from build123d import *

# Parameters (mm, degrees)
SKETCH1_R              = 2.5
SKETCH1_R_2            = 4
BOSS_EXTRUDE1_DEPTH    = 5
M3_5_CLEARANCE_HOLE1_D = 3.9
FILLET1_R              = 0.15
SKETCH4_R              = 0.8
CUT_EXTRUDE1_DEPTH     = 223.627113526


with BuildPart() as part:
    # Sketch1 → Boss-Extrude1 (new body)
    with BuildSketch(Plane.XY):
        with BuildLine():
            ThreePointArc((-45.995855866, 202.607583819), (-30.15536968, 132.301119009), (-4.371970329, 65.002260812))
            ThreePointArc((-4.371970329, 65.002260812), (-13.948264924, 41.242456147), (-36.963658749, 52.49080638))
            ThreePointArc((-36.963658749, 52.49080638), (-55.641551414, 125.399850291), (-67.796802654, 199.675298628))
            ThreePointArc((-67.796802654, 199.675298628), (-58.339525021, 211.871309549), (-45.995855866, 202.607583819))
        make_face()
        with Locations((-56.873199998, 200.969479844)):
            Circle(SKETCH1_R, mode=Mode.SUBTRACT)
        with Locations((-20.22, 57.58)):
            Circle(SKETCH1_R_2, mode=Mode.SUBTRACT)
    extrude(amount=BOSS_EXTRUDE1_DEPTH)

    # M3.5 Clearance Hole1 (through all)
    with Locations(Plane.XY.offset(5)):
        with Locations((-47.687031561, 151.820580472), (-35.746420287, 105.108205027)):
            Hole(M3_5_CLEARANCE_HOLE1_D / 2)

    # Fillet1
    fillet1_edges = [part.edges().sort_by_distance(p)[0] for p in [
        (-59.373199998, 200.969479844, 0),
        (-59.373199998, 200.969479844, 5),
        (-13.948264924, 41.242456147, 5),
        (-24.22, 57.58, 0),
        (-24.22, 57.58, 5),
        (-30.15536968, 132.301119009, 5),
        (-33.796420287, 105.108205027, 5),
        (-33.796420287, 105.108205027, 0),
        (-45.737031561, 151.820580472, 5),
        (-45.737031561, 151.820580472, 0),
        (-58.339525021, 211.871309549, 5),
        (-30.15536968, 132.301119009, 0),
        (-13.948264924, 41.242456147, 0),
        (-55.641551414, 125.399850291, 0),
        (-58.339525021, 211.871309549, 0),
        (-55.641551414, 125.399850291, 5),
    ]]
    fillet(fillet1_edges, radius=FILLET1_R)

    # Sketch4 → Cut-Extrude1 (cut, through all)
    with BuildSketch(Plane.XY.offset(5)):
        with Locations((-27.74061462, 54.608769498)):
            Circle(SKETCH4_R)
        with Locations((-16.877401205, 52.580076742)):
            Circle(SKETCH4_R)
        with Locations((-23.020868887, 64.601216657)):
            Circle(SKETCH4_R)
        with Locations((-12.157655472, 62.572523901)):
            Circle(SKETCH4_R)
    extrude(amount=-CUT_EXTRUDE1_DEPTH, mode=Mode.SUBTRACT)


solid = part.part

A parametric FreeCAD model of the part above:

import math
import FreeCAD as App
import Part
import Sketcher

V = App.Vector


def edges_at(feature, points):
    """Names of the edges that pass closest to the given points."""
    edges = feature.Shape.Edges
    near = lambda p: min(range(len(edges)), key=lambda i: edges[i].distToShape(Part.Vertex(*p))[0])
    return sorted({f"Edge{near(p) + 1}" for p in points})

doc = App.newDocument("Part")
body = doc.addObject("PartDesign::Body", "Body")

# Sketch on XY plane
sketch1 = body.newObject("Sketcher::SketchObject", "Sketch")
sketch1.AttachmentSupport = (doc.getObject("XY_Plane"), [""])
sketch1.MapMode = "FlatFace"
sketch1.addGeometry([
    Part.ArcOfCircle(Part.Circle(V(448.428877, 277.066855, 0), V(0, 0, 1), 500), math.radians(-171.43574), math.radians(-154.904444)),  # 0
    Part.ArcOfCircle(Part.Circle(V(-56.8732, 200.96948, 0), V(0, 0, 1), 11), math.radians(8.56426), math.radians(186.75666)),  # 1
    Part.ArcOfCircle(Part.Circle(V(776.299766, 299.680211, 0), V(0, 0, 1), 850), math.radians(-173.24334), math.radians(-163.093481)),  # 2
    Part.ArcOfCircle(Part.Circle(V(-20.22, 57.58, 0), V(0, 0, 1), 17.5), math.radians(-163.093481), math.radians(25.095556)),  # 3
    Part.Circle(V(-20.22, 57.58, 0), V(0, 0, 1), 4),  # 4
    Part.Circle(V(-56.8732, 200.96948, 0), V(0, 0, 1), 2.5),  # 5
], False)
sketch1.addConstraint([
    Sketcher.Constraint("Tangent", 0, 1, 1, 1),
    Sketcher.Constraint("Tangent", 1, 2, 2, 1),
    Sketcher.Constraint("Tangent", 2, 2, 3, 1),
    Sketcher.Constraint("Tangent", 3, 2, 0, 2),
    Sketcher.Constraint("Coincident", 4, 3, 3, 3),
    Sketcher.Constraint("Coincident", 5, 3, 1, 3),
    Sketcher.Constraint("Diameter", 4, 8.0),
    Sketcher.Constraint("Diameter", 5, 5.0),
    Sketcher.Constraint("Radius", 0, 500.0),
    Sketcher.Constraint("Radius", 1, 11.0),
    Sketcher.Constraint("Radius", 2, 850.0),
    Sketcher.Constraint("Radius", 3, 17.5),
    Sketcher.Constraint("DistanceX", 3, 3, -1, 1, 20.22),
    Sketcher.Constraint("DistanceY", -1, 1, 3, 3, 57.58),
    Sketcher.Constraint("DistanceX", 1, 3, -1, 1, 56.8732),
    Sketcher.Constraint("DistanceY", -1, 1, 1, 2, 199.675299),
])
pad1 = body.newObject("PartDesign::Pad", "Pad")
pad1.Profile = sketch1
pad1.Length = 5

# Sketch on XY plane
sketch2 = body.newObject("Sketcher::SketchObject", "Sketch001")
sketch2.AttachmentSupport = (doc.getObject("XY_Plane"), [""])
sketch2.MapMode = "FlatFace"
sketch2.AttachmentOffset = App.Placement(V(0, 0, 5), App.Rotation())
sketch2.addGeometry([
    Part.Circle(V(-47.687032, 151.82058, 0), V(0, 0, 1), 1.95),
    Part.Circle(V(-35.74642, 105.108205, 0), V(0, 0, 1), 1.95),
], False)
sketch2.addConstraint([
    Sketcher.Constraint("Equal", 0, 1),
    Sketcher.Constraint("Diameter", 0, 3.9),
    Sketcher.Constraint("DistanceX", 0, 3, -1, 1, 47.687032),
    Sketcher.Constraint("DistanceY", -1, 1, 0, 3, 151.82058),
    Sketcher.Constraint("DistanceX", 1, 3, -1, 1, 35.74642),
    Sketcher.Constraint("DistanceY", -1, 1, 1, 3, 105.108205),
])
doc.recompute()
hole = body.newObject("PartDesign::Hole", "Hole")
hole.Profile = sketch2
hole.ThreadType = "None"
hole.Diameter = 3.9
hole.DepthType = "ThroughAll"
doc.recompute()

fillet = body.newObject("PartDesign::Fillet", "Fillet")
fillet.Base = (hole, edges_at(hole, [
    (-59.373, 200.969, 0),
    (-59.373, 200.969, 5),
    (-13.948, 41.242, 5),
    (-24.22, 57.58, 0),
    (-24.22, 57.58, 5),
    (-30.155, 132.301, 5),
    (-33.796, 105.108, 5),
    (-33.796, 105.108, 0),
    (-45.737, 151.821, 5),
    (-45.737, 151.821, 0),
    (-58.34, 211.871, 5),
    (-30.155, 132.301, 0),
    (-13.948, 41.242, 0),
    (-55.642, 125.4, 0),
    (-58.34, 211.871, 0),
    (-55.642, 125.4, 5),
]))
fillet.Radius = 0.15

# Sketch on XY plane
sketch3 = body.newObject("Sketcher::SketchObject", "Sketch002")
sketch3.AttachmentSupport = (doc.getObject("XY_Plane"), [""])
sketch3.MapMode = "FlatFace"
sketch3.AttachmentOffset = App.Placement(V(0, 0, 5), App.Rotation())
sketch3.addGeometry([
    Part.Circle(V(-27.740615, 54.608769, 0), V(0, 0, 1), 0.8),
    Part.Circle(V(-16.877401, 52.580077, 0), V(0, 0, 1), 0.8),
    Part.Circle(V(-23.020869, 64.601217, 0), V(0, 0, 1), 0.8),
    Part.Circle(V(-12.157655, 62.572524, 0), V(0, 0, 1), 0.8),
], False)
sketch3.addConstraint([
    Sketcher.Constraint("Equal", 0, 1),
    Sketcher.Constraint("Equal", 1, 2),
    Sketcher.Constraint("Equal", 2, 3),
    Sketcher.Constraint("Diameter", 0, 1.6),
    Sketcher.Constraint("DistanceX", 1, 3, -1, 1, 16.877401),
    Sketcher.Constraint("DistanceY", -1, 1, 0, 3, 54.608769),
    Sketcher.Constraint("DistanceX", 2, 3, -1, 1, 23.020869),
    Sketcher.Constraint("DistanceY", 1, 3, 2, 3, 12.02114),
    Sketcher.Constraint("DistanceX", 0, 3, 3, 3, 15.582959),
    Sketcher.Constraint("DistanceX", 0, 3, -1, 1, 27.740615),
    Sketcher.Constraint("DistanceY", -1, 1, 1, 3, 52.580077),
    Sketcher.Constraint("DistanceY", -1, 1, 3, 3, 62.572524),
])
pocket1 = body.newObject("PartDesign::Pocket", "Pocket")
pocket1.Profile = sketch3
pocket1.Type = "ThroughAll"

doc.recompute()
